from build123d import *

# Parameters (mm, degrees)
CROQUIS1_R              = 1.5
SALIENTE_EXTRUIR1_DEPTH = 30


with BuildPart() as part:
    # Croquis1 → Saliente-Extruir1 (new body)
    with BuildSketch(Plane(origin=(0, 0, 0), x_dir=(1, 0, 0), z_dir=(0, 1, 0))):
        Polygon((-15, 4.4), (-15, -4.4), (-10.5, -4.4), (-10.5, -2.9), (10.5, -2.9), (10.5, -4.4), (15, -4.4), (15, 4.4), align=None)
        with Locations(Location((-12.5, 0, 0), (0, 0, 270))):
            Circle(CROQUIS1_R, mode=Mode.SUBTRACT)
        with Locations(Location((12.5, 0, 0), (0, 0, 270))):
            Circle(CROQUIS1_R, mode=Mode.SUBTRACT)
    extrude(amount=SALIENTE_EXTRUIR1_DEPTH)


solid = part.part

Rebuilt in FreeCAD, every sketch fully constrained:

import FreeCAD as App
import Part
import Sketcher

V = App.Vector

doc = App.newDocument("Part")
body = doc.addObject("PartDesign::Body", "Body")

# Sketch on XZ plane
sketch1 = doc.addObject("Sketcher::SketchObject", "Sketch")
body.addObject(sketch1)
sketch1.AttachmentSupport = (doc.XZ_Plane, [""])
sketch1.MapMode = "FlatFace"
sketch1.addGeometry(Part.LineSegment(V(-15, -4.4, 0), V(-15, 4.4, 0)), False)
sketch1.addGeometry(Part.LineSegment(V(-15, 4.4, 0), V(-10.5, 4.4, 0)), False)
sketch1.addGeometry(Part.LineSegment(V(-10.5, 4.4, 0), V(-10.5, 2.9, 0)), False)
sketch1.addGeometry(Part.LineSegment(V(-10.5, 2.9, 0), V(10.5, 2.9, 0)), False)
sketch1.addGeometry(Part.LineSegment(V(10.5, 2.9, 0), V(10.5, 4.4, 0)), False)
sketch1.addGeometry(Part.LineSegment(V(10.5, 4.4, 0), V(15, 4.4, 0)), False)
sketch1.addGeometry(Part.LineSegment(V(15, 4.4, 0), V(15, -4.4, 0)), False)
sketch1.addGeometry(Part.LineSegment(V(15, -4.4, 0), V(-15, -4.4, 0)), False)
sketch1.addGeometry(Part.Circle(V(-12.5, 0, 0), V(0, 0, 1), 1.5), False)
sketch1.addGeometry(Part.Circle(V(12.5, 0, 0), V(0, 0, 1), 1.5), False)
sketch1.addConstraint(Sketcher.Constraint("Coincident", 0, 2, 1, 1))
sketch1.addConstraint(Sketcher.Constraint("Coincident", 1, 2, 2, 1))
sketch1.addConstraint(Sketcher.Constraint("Coincident", 2, 2, 3, 1))
sketch1.addConstraint(Sketcher.Constraint("Coincident", 3, 2, 4, 1))
sketch1.addConstraint(Sketcher.Constraint("Coincident", 4, 2, 5, 1))
sketch1.addConstraint(Sketcher.Constraint("Coincident", 5, 2, 6, 1))
sketch1.addConstraint(Sketcher.Constraint("Coincident", 6, 2, 7, 1))
sketch1.addConstraint(Sketcher.Constraint("Coincident", 7, 2, 0, 1))
sketch1.addConstraint(Sketcher.Constraint("Vertical", 0))
sketch1.addConstraint(Sketcher.Constraint("Horizontal", 1))
sketch1.addConstraint(Sketcher.Constraint("Vertical", 2))
sketch1.addConstraint(Sketcher.Constraint("Horizontal", 3))
sketch1.addConstraint(Sketcher.Constraint("Vertical", 4))
sketch1.addConstraint(Sketcher.Constraint("Horizontal", 5))
sketch1.addConstraint(Sketcher.Constraint("Vertical", 6))
sketch1.addConstraint(Sketcher.Constraint("Horizontal", 7))
sketch1.addConstraint(Sketcher.Constraint("Equal", 8, 9))
sketch1.addConstraint(Sketcher.Constraint("Symmetric", 8, 3, 9, 3, -1, 1))
sketch1.addConstraint(Sketcher.Constraint("Symmetric", 0, 2, 6, 2, -1, 1))
sketch1.addConstraint(Sketcher.Constraint("Symmetric", 1, 2, 4, 2, -2))
sketch1.addConstraint(Sketcher.Constraint("PointOnObject", 8, 3, -1))
sketch1.addConstraint(Sketcher.Constraint("Diameter", 8, 3.0))
sketch1.addConstraint(Sketcher.Constraint("DistanceX", 3, 1, 3, 2, 21.0))
sketch1.addConstraint(Sketcher.Constraint("DistanceX", 7, 2, 7, 1, 30.0))
sketch1.addConstraint(Sketcher.Constraint("DistanceY", 0, 1, 0, 2, 8.8))
sketch1.addConstraint(Sketcher.Constraint("DistanceY", 2, 2, 2, 1, 1.5))
sketch1.addConstraint(Sketcher.Constraint("DistanceX", 8, 3, 9, 3, 25.0))
pad1 = doc.addObject("PartDesign::Pad", "Pad")
body.addObject(pad1)
pad1.Profile = sketch1
pad1.Length = 30
pad1.Reversed = True

doc.recompute()
